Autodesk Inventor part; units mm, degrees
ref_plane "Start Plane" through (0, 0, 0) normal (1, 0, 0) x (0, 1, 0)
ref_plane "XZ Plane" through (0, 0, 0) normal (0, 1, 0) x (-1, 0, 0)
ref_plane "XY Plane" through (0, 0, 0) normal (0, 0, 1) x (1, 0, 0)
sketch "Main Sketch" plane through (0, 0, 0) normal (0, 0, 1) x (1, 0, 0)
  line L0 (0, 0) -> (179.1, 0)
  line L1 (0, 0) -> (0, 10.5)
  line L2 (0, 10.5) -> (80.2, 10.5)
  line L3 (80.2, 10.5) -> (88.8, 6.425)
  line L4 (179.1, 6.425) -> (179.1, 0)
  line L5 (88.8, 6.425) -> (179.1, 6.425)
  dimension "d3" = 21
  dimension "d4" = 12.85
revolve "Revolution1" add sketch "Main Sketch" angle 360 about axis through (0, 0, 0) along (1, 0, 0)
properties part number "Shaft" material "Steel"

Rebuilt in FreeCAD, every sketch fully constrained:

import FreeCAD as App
import Part
import Sketcher
from FreeCAD import Vector
Q = App.Units.Quantity


def add_polygon(sketch, points):
    """Adds a closed chain of lines whose ends are joined by coincident constraints."""
    first, n = sketch.GeometryCount, len(points)
    for a, b in zip(points, points[1:] + points[:1]):
        sketch.addGeometry(Part.LineSegment(App.Vector(*a, 0), App.Vector(*b, 0)), False)
    for i in range(n):
        sketch.addConstraint(Sketcher.Constraint("Coincident", first + i, 2, first + (i + 1) % n, 1))

doc = App.newDocument("Part")
body = doc.addObject("PartDesign::Body", "Body")

# Sketch on XY plane
sketch1 = doc.addObject("Sketcher::SketchObject", "Sketch")
body.addObject(sketch1)
sketch1.AttachmentSupport = (doc.XY_Plane, [""])
sketch1.MapMode = "FlatFace"
add_polygon(sketch1, [(0, 10.5), (0, 0), (179.1, 0), (179.1, 6.425), (88.8, 6.425), (80.2, 10.5)])  # lines 0-5
sketch1.addConstraint([
    Sketcher.Constraint("Vertical", 0),
    Sketcher.Constraint("Horizontal", 1),
    Sketcher.Constraint("Vertical", 2),
    Sketcher.Constraint("Horizontal", 3),
    Sketcher.Constraint("Horizontal", 5),
    Sketcher.Constraint("Coincident", 0, 2, -1, 1),
    Sketcher.Constraint("DistanceX", 1, 1, 1, 2, Q("179.1 mm")),
    Sketcher.Constraint("DistanceX", 3, 2, 3, 1, Q("90.3 mm")),
    Sketcher.Constraint("DistanceX", 5, 2, 5, 1, Q("80.2 mm")),
    Sketcher.Constraint("DistanceY", 0, 2, 0, 1, Q("10.5 mm")),
    Sketcher.Constraint("DistanceY", 2, 1, 2, 2, Q("6.425 mm")),
])
revolution = doc.addObject("PartDesign::Revolution", "Revolution")
body.addObject(revolution)
revolution.Profile = sketch1
revolution.ReferenceAxis = (sketch1, ["H_Axis"])
revolution.Angle = 360

doc.recompute()
